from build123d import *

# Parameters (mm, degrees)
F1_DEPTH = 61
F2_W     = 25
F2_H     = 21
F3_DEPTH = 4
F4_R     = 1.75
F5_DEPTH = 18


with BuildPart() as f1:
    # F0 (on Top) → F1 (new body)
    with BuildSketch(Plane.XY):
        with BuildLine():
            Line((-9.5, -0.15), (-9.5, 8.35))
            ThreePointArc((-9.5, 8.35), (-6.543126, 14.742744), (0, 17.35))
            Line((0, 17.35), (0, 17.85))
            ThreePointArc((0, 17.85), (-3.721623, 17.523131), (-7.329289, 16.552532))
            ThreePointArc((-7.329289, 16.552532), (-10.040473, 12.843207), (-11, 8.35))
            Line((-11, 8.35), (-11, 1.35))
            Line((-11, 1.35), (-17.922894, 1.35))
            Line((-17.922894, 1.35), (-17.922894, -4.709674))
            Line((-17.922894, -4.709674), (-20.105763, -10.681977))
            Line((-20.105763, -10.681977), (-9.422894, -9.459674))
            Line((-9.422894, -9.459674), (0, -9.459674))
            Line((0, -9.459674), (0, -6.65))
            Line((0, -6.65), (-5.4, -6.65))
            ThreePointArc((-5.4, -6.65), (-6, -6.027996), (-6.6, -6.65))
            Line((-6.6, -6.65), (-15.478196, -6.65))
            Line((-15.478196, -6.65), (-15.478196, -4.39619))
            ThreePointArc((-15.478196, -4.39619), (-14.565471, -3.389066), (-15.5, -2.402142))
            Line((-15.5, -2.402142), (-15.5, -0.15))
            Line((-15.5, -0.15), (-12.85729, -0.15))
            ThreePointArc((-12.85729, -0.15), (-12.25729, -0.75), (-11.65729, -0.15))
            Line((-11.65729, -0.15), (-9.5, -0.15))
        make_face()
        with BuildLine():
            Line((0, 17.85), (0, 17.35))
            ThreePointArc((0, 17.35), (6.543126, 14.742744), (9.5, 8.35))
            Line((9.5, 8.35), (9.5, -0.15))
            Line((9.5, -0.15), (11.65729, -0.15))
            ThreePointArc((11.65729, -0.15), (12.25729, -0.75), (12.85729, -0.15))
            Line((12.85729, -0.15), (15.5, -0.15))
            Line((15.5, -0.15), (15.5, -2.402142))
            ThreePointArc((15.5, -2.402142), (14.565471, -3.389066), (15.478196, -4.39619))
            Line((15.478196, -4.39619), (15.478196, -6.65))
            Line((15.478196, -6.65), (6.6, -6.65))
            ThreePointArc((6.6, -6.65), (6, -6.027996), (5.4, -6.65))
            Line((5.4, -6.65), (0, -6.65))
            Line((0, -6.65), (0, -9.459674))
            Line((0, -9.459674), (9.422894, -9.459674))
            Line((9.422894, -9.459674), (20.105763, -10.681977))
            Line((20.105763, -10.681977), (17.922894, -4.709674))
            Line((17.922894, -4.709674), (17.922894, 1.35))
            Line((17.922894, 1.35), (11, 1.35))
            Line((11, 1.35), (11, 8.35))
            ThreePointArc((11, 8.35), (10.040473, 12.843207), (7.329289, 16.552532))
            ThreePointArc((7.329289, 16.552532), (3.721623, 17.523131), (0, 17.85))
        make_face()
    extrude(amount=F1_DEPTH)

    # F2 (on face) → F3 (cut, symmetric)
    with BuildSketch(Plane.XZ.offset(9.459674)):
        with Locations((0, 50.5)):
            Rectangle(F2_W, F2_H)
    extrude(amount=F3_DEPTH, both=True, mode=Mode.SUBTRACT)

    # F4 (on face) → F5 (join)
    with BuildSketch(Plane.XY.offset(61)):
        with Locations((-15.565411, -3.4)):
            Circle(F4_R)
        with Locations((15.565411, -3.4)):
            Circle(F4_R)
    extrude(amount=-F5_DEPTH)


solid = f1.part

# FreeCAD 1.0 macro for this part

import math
import FreeCAD as App
import Part
import Sketcher

doc = App.newDocument("Part")
body = doc.addObject("PartDesign::Body", "Body")

# Sketch on XY plane
sketch1 = body.newObject("Sketcher::SketchObject", "Sketch")
sketch1.AttachmentSupport = (doc.getObject("XY_Plane"), [""])
sketch1.MapMode = "FlatFace"
sketch1.addGeometry(Part.ArcOfCircle(Part.Circle(App.Vector(-0.000003, -3.499991, 0), App.Vector(0, 0, 1), 21.349991), math.radians(89.999992), math.radians(110.077583)), False)
sketch1.addGeometry(Part.ArcOfCircle(Part.Circle(App.Vector(-0.000001, 8.350001, 0), App.Vector(0, 0, 1), 10.999999), math.radians(131.782056), math.radians(180.000006)), False)
sketch1.addGeometry(Part.LineSegment(App.Vector(-11, 8.35, 0), App.Vector(-11, 1.35, 0)), False)
sketch1.addGeometry(Part.LineSegment(App.Vector(-11, 1.35, 0), App.Vector(-17.922894, 1.35, 0)), False)
sketch1.addGeometry(Part.LineSegment(App.Vector(-17.922894, 1.35, 0), App.Vector(-17.922894, -4.709674, 0)), False)
sketch1.addGeometry(Part.LineSegment(App.Vector(-17.922894, -4.709674, 0), App.Vector(-20.105763, -10.681977, 0)), False)
sketch1.addGeometry(Part.LineSegment(App.Vector(-20.105763, -10.681977, 0), App.Vector(-9.422894, -9.459674, 0)), False)
sketch1.addGeometry(Part.LineSegment(App.Vector(-9.422894, -9.459674, 0), App.Vector(9.422894, -9.459674, 0)), False)
sketch1.addGeometry(Part.LineSegment(App.Vector(9.422894, -9.459674, 0), App.Vector(20.105763, -10.681977, 0)), False)
sketch1.addGeometry(Part.LineSegment(App.Vector(20.105763, -10.681977, 0), App.Vector(17.922894, -4.709674, 0)), False)
sketch1.addGeometry(Part.LineSegment(App.Vector(17.922894, -4.709674, 0), App.Vector(17.922894, 1.35, 0)), False)
sketch1.addGeometry(Part.LineSegment(App.Vector(17.922894, 1.35, 0), App.Vector(11, 1.35, 0)), False)
sketch1.addGeometry(Part.LineSegment(App.Vector(11, 1.35, 0), App.Vector(11, 8.35, 0)), False)
sketch1.addGeometry(Part.ArcOfCircle(Part.Circle(App.Vector(0.000001, 8.350001, 0), App.Vector(0, 0, 1), 10.999999), math.radians(-0.000006), math.radians(48.217944)), False)
sketch1.addGeometry(Part.ArcOfCircle(Part.Circle(App.Vector(0.000003, -3.499991, 0), App.Vector(0, 0, 1), 21.349991), math.radians(69.922417), math.radians(90.000008)), False)
sketch1.addGeometry(Part.LineSegment(App.Vector(-9.5, -0.15, 0), App.Vector(-9.5, 8.35, 0)), False)
sketch1.addGeometry(Part.ArcOfCircle(Part.Circle(App.Vector(0.000001, 7.83611, 0), App.Vector(0, 0, 1), 9.51389), math.radians(90.000005), math.radians(176.90368)), False)
sketch1.addGeometry(Part.ArcOfCircle(Part.Circle(App.Vector(-0.000001, 7.83611, 0), App.Vector(0, 0, 1), 9.51389), math.radians(3.09632), math.radians(89.999995)), False)
sketch1.addGeometry(Part.LineSegment(App.Vector(9.5, 8.35, 0), App.Vector(9.5, -0.15, 0)), False)
sketch1.addGeometry(Part.LineSegment(App.Vector(9.5, -0.15, 0), App.Vector(11.65729, -0.15, 0)), False)
sketch1.addGeometry(Part.ArcOfCircle(Part.Circle(App.Vector(12.25729, -0.15, 0), App.Vector(0, 0, 1), 0.6), math.radians(180), math.radians(360)), False)
sketch1.addGeometry(Part.LineSegment(App.Vector(12.85729, -0.15, 0), App.Vector(15.5, -0.15, 0)), False)
sketch1.addGeometry(Part.LineSegment(App.Vector(15.5, -0.15, 0), App.Vector(15.5, -2.402142, 0)), False)
sketch1.addGeometry(Part.ArcOfCircle(Part.Circle(App.Vector(15.565411, -3.4, 0), App.Vector(0, 0, 1), 1), math.radians(93.750468), math.radians(264.996576)), False)
sketch1.addGeometry(Part.LineSegment(App.Vector(15.478196, -4.39619, 0), App.Vector(15.478196, -6.65, 0)), False)
sketch1.addGeometry(Part.LineSegment(App.Vector(15.478196, -6.65, 0), App.Vector(6.6, -6.65, 0)), False)
sketch1.addGeometry(Part.ArcOfCircle(Part.Circle(App.Vector(6, -6.628385, 0), App.Vector(0, 0, 1), 0.600389), math.radians(-2.063168), math.radians(182.063168)), False)
sketch1.addGeometry(Part.LineSegment(App.Vector(5.4, -6.65, 0), App.Vector(-5.4, -6.65, 0)), False)
sketch1.addGeometry(Part.ArcOfCircle(Part.Circle(App.Vector(-6, -6.628385, 0), App.Vector(0, 0, 1), 0.600389), math.radians(-2.063168), math.radians(182.063168)), False)
sketch1.addGeometry(Part.LineSegment(App.Vector(-6.6, -6.65, 0), App.Vector(-15.478196, -6.65, 0)), False)
sketch1.addGeometry(Part.LineSegment(App.Vector(-15.478196, -6.65, 0), App.Vector(-15.478196, -4.39619, 0)), False)
sketch1.addGeometry(Part.ArcOfCircle(Part.Circle(App.Vector(-15.565411, -3.4, 0), App.Vector(0, 0, 1), 1), math.radians(-84.996576), math.radians(86.249532)), False)
sketch1.addGeometry(Part.LineSegment(App.Vector(-15.5, -2.402142, 0), App.Vector(-15.5, -0.15, 0)), False)
sketch1.addGeometry(Part.LineSegment(App.Vector(-15.5, -0.15, 0), App.Vector(-12.85729, -0.15, 0)), False)
sketch1.addGeometry(Part.ArcOfCircle(Part.Circle(App.Vector(-12.25729, -0.15, 0), App.Vector(0, 0, 1), 0.6), math.radians(180), math.radians(360)), False)
sketch1.addGeometry(Part.LineSegment(App.Vector(-11.65729, -0.15, 0), App.Vector(-9.5, -0.15, 0)), False)
sketch1.addConstraint(Sketcher.Constraint("Coincident", 0, 2, 1, 1))
sketch1.addConstraint(Sketcher.Constraint("Tangent", 1, 2, 2, 1))
sketch1.addConstraint(Sketcher.Constraint("Coincident", 2, 2, 3, 1))
sketch1.addConstraint(Sketcher.Constraint("Coincident", 3, 2, 4, 1))
sketch1.addConstraint(Sketcher.Constraint("Coincident", 4, 2, 5, 1))
sketch1.addConstraint(Sketcher.Constraint("Coincident", 5, 2, 6, 1))
sketch1.addConstraint(Sketcher.Constraint("Coincident", 6, 2, 7, 1))
sketch1.addConstraint(Sketcher.Constraint("Coincident", 7, 2, 8, 1))
sketch1.addConstraint(Sketcher.Constraint("Coincident", 8, 2, 9, 1))
sketch1.addConstraint(Sketcher.Constraint("Coincident", 9, 2, 10, 1))
sketch1.addConstraint(Sketcher.Constraint("Coincident", 10, 2, 11, 1))
sketch1.addConstraint(Sketcher.Constraint("Coincident", 11, 2, 12, 1))
sketch1.addConstraint(Sketcher.Constraint("Tangent", 12, 2, 13, 1))
sketch1.addConstraint(Sketcher.Constraint("Coincident", 13, 2, 14, 1))
sketch1.addConstraint(Sketcher.Constraint("Tangent", 14, 2, 0, 1))
sketch1.addConstraint(Sketcher.Constraint("Coincident", 15, 2, 16, 2))
sketch1.addConstraint(Sketcher.Constraint("Tangent", 16, 1, 17, 2))
sketch1.addConstraint(Sketcher.Constraint("Coincident", 17, 1, 18, 1))
sketch1.addConstraint(Sketcher.Constraint("Coincident", 18, 2, 19, 1))
sketch1.addConstraint(Sketcher.Constraint("Coincident", 19, 2, 20, 1))
sketch1.addConstraint(Sketcher.Constraint("Coincident", 20, 2, 21, 1))
sketch1.addConstraint(Sketcher.Constraint("Coincident", 21, 2, 22, 1))
sketch1.addConstraint(Sketcher.Constraint("Coincident", 22, 2, 23, 1))
sketch1.addConstraint(Sketcher.Constraint("Coincident", 23, 2, 24, 1))
sketch1.addConstraint(Sketcher.Constraint("Coincident", 24, 2, 25, 1))
sketch1.addConstraint(Sketcher.Constraint("Coincident", 25, 2, 26, 1))
sketch1.addConstraint(Sketcher.Constraint("Coincident", 26, 2, 27, 1))
sketch1.addConstraint(Sketcher.Constraint("Coincident", 27, 2, 28, 1))
sketch1.addConstraint(Sketcher.Constraint("Coincident", 28, 2, 29, 1))
sketch1.addConstraint(Sketcher.Constraint("Coincident", 29, 2, 30, 1))
sketch1.addConstraint(Sketcher.Constraint("Coincident", 30, 2, 31, 1))
sketch1.addConstraint(Sketcher.Constraint("Coincident", 31, 2, 32, 1))
sketch1.addConstraint(Sketcher.Constraint("Coincident", 32, 2, 33, 1))
sketch1.addConstraint(Sketcher.Constraint("Coincident", 33, 2, 34, 1))
sketch1.addConstraint(Sketcher.Constraint("Coincident", 34, 2, 35, 1))
sketch1.addConstraint(Sketcher.Constraint("Coincident", 35, 2, 15, 1))
sketch1.addConstraint(Sketcher.Constraint("Vertical", 2))
sketch1.addConstraint(Sketcher.Constraint("Horizontal", 3))
sketch1.addConstraint(Sketcher.Constraint("Vertical", 4))
sketch1.addConstraint(Sketcher.Constraint("Horizontal", 7))
sketch1.addConstraint(Sketcher.Constraint("Vertical", 10))
sketch1.addConstraint(Sketcher.Constraint("Horizontal", 11))
sketch1.addConstraint(Sketcher.Constraint("Vertical", 12))
sketch1.addConstraint(Sketcher.Constraint("Vertical", 15))
sketch1.addConstraint(Sketcher.Constraint("Vertical", 18))
sketch1.addConstraint(Sketcher.Constraint("Horizontal", 19))
sketch1.addConstraint(Sketcher.Constraint("Horizontal", 21))
sketch1.addConstraint(Sketcher.Constraint("Vertical", 22))
sketch1.addConstraint(Sketcher.Constraint("Vertical", 24))
sketch1.addConstraint(Sketcher.Constraint("Horizontal", 25))
sketch1.addConstraint(Sketcher.Constraint("Horizontal", 27))
sketch1.addConstraint(Sketcher.Constraint("Horizontal", 29))
sketch1.addConstraint(Sketcher.Constraint("Vertical", 30))
sketch1.addConstraint(Sketcher.Constraint("Vertical", 32))
sketch1.addConstraint(Sketcher.Constraint("Horizontal", 33))
sketch1.addConstraint(Sketcher.Constraint("Horizontal", 35))
sketch1.addConstraint(Sketcher.Constraint("Coincident", 13, 3, 1, 3))
sketch1.addConstraint(Sketcher.Constraint("Equal", 1, 13))
sketch1.addConstraint(Sketcher.Constraint("Equal", 0, 14))
sketch1.addConstraint(Sketcher.Constraint("Equal", 16, 17))
sketch1.addConstraint(Sketcher.Constraint("Equal", 26, 28))
sketch1.addConstraint(Sketcher.Constraint("Equal", 23, 31))
sketch1.addConstraint(Sketcher.Constraint("Equal", 20, 34))
sketch1.addConstraint(Sketcher.Constraint("Symmetric", 26, 3, 28, 3, -2))
sketch1.addConstraint(Sketcher.Constraint("Symmetric", 23, 3, 31, 3, -2))
sketch1.addConstraint(Sketcher.Constraint("Symmetric", 20, 3, 34, 3, -2))
sketch1.addConstraint(Sketcher.Constraint("Symmetric", 5, 2, 8, 2, -2))
sketch1.addConstraint(Sketcher.Constraint("Symmetric", 4, 2, 9, 2, -2))
sketch1.addConstraint(Sketcher.Constraint("Symmetric", 2, 2, 11, 2, -2))
sketch1.addConstraint(Sketcher.Constraint("Symmetric", 15, 2, 17, 1, -2))
sketch1.addConstraint(Sketcher.Constraint("Symmetric", 24, 2, 29, 2, -2))
sketch1.addConstraint(Sketcher.Constraint("Symmetric", 21, 2, 32, 2, -2))
sketch1.addConstraint(Sketcher.Constraint("PointOnObject", 14, 2, -2))
sketch1.addConstraint(Sketcher.Constraint("PointOnObject", 16, 1, -2))
sketch1.addConstraint(Sketcher.Constraint("Horizontal", 0, 2, 13, 2))
sketch1.addConstraint(Sketcher.Constraint("Horizontal", 12, 2, 15, 2))
sketch1.addConstraint(Sketcher.Constraint("Horizontal", 34, 3, 18, 2))
sketch1.addConstraint(Sketcher.Constraint("Horizontal", 19, 2, 20, 2))
sketch1.addConstraint(Sketcher.Constraint("Horizontal", 25, 2, 26, 2))
sketch1.addConstraint(Sketcher.Constraint("Horizontal", 33, 2, 34, 2))
sketch1.addConstraint(Sketcher.Constraint("Equal", 6, 8))
sketch1.addConstraint(Sketcher.Constraint("Radius", 1, 10.999999))
sketch1.addConstraint(Sketcher.Constraint("Radius", 23, 1.0))
sketch1.addConstraint(Sketcher.Constraint("Radius", 20, 0.6))
sketch1.addConstraint(Sketcher.Constraint("DistanceY", 2, 2, 2, 1, 7.0))
sketch1.addConstraint(Sketcher.Constraint("DistanceX", 27, 2, 27, 1, 10.8))
sketch1.addConstraint(Sketcher.Constraint("DistanceY", 15, 1, 15, 2, 8.5))
sketch1.addConstraint(Sketcher.Constraint("DistanceX", -1, 1, 26, 3, 6.0))
sketch1.addConstraint(Sketcher.Constraint("DistanceY", 1, 3, 16, 1, 8.999999))
sketch1.addConstraint(Sketcher.Constraint("DistanceX", 32, 2, 35, 2, 6.0))
sketch1.addConstraint(Sketcher.Constraint("DistanceY", 23, 3, -1, 1, 3.4))
sketch1.addConstraint(Sketcher.Constraint("DistanceX", 15, 2, -1, 1, 9.5))
sketch1.addConstraint(Sketcher.Constraint("DistanceX", 4, 2, 6, 2, 8.5))
sketch1.addConstraint(Sketcher.Constraint("DistanceY", 1, 3, 14, 2, 9.499999))
sketch1.addConstraint(Sketcher.Constraint("DistanceY", 25, 2, 18, 2, 6.5))
sketch1.addConstraint(Sketcher.Constraint("DistanceY", -1, 1, 1, 3, 8.350001))
sketch1.addConstraint(Sketcher.Constraint("Radius", 0, 21.349991))
sketch1.addConstraint(Sketcher.Constraint("Radius", 26, 0.600389))
sketch1.addConstraint(Sketcher.Constraint("DistanceY", 6, 2, 4, 2, 4.75))
sketch1.addConstraint(Sketcher.Constraint("DistanceX", 34, 3, 0, 2, 4.928001))
sketch1.addConstraint(Sketcher.Constraint("DistanceY", 24, 2, 24, 1, 2.25381))
sketch1.addConstraint(Sketcher.Constraint("Distance", 5, 6.35872))
sketch1.addConstraint(Sketcher.Constraint("DistanceX", 3, 2, 3, 1, 6.922894))
sketch1.addConstraint(Sketcher.Constraint("DistanceX", 25, 2, 25, 1, 8.878196))
sketch1.addConstraint(Sketcher.Constraint("DistanceY", 4, 2, 4, 1, 6.059674))
sketch1.addConstraint(Sketcher.Constraint("DistanceX", 5, 2, 4, 2, 2.182869))
pad1 = body.newObject("PartDesign::Pad", "Pad")
pad1.Profile = sketch1
pad1.Length = 61

# Sketch on XZ plane
sketch2 = body.newObject("Sketcher::SketchObject", "Sketch001")
sketch2.AttachmentSupport = (doc.getObject("XZ_Plane"), [""])
sketch2.MapMode = "FlatFace"
sketch2.AttachmentOffset = App.Placement(App.Vector(0, 0, 9.459674), App.Rotation())
sketch2.addGeometry(Part.LineSegment(App.Vector(-12.5, 61, 0), App.Vector(-12.5, 40, 0)), False)
sketch2.addGeometry(Part.LineSegment(App.Vector(-12.5, 40, 0), App.Vector(12.5, 40, 0)), False)
sketch2.addGeometry(Part.LineSegment(App.Vector(12.5, 40, 0), App.Vector(12.5, 61, 0)), False)
sketch2.addGeometry(Part.LineSegment(App.Vector(12.5, 61, 0), App.Vector(-12.5, 61, 0)), False)
sketch2.addConstraint(Sketcher.Constraint("Coincident", 0, 2, 1, 1))
sketch2.addConstraint(Sketcher.Constraint("Coincident", 1, 2, 2, 1))
sketch2.addConstraint(Sketcher.Constraint("Coincident", 2, 2, 3, 1))
sketch2.addConstraint(Sketcher.Constraint("Coincident", 3, 2, 0, 1))
sketch2.addConstraint(Sketcher.Constraint("Vertical", 0))
sketch2.addConstraint(Sketcher.Constraint("Horizontal", 1))
sketch2.addConstraint(Sketcher.Constraint("Vertical", 2))
sketch2.addConstraint(Sketcher.Constraint("Horizontal", 3))
sketch2.addConstraint(Sketcher.Constraint("DistanceX", 1, 1, 1, 2, 25.0))
sketch2.addConstraint(Sketcher.Constraint("DistanceY", 0, 2, 0, 1, 21.0))
sketch2.addConstraint(Sketcher.Constraint("DistanceY", -1, 1, 0, 2, 40.0))
sketch2.addConstraint(Sketcher.Constraint("DistanceX", 0, 2, -1, 1, 12.5))
pocket1 = body.newObject("PartDesign::Pocket", "Pocket")
pocket1.Profile = sketch2
pocket1.Length = 8
pocket1.Midplane = True

# Sketch on XY plane
sketch3 = body.newObject("Sketcher::SketchObject", "Sketch002")
sketch3.AttachmentSupport = (doc.getObject("XY_Plane"), [""])
sketch3.MapMode = "FlatFace"
sketch3.AttachmentOffset = App.Placement(App.Vector(0, 0, 61), App.Rotation())
sketch3.addGeometry(Part.Circle(App.Vector(-15.565411, -3.4, 0), App.Vector(0, 0, 1), 1.75), False)
sketch3.addGeometry(Part.Circle(App.Vector(15.565411, -3.4, 0), App.Vector(0, 0, 1), 1.75), False)
sketch3.addConstraint(Sketcher.Constraint("Equal", 0, 1))
sketch3.addConstraint(Sketcher.Constraint("Symmetric", 0, 3, 1, 3, -2))
sketch3.addConstraint(Sketcher.Constraint("Diameter", 0, 3.5))
sketch3.addConstraint(Sketcher.Constraint("DistanceY", 0, 3, -1, 1, 3.4))
sketch3.addConstraint(Sketcher.Constraint("DistanceX", 0, 3, -1, 1, 15.565411))
pad2 = body.newObject("PartDesign::Pad", "Pad001")
pad2.Profile = sketch3
pad2.Length = 18
pad2.Reversed = True

doc.recompute()
